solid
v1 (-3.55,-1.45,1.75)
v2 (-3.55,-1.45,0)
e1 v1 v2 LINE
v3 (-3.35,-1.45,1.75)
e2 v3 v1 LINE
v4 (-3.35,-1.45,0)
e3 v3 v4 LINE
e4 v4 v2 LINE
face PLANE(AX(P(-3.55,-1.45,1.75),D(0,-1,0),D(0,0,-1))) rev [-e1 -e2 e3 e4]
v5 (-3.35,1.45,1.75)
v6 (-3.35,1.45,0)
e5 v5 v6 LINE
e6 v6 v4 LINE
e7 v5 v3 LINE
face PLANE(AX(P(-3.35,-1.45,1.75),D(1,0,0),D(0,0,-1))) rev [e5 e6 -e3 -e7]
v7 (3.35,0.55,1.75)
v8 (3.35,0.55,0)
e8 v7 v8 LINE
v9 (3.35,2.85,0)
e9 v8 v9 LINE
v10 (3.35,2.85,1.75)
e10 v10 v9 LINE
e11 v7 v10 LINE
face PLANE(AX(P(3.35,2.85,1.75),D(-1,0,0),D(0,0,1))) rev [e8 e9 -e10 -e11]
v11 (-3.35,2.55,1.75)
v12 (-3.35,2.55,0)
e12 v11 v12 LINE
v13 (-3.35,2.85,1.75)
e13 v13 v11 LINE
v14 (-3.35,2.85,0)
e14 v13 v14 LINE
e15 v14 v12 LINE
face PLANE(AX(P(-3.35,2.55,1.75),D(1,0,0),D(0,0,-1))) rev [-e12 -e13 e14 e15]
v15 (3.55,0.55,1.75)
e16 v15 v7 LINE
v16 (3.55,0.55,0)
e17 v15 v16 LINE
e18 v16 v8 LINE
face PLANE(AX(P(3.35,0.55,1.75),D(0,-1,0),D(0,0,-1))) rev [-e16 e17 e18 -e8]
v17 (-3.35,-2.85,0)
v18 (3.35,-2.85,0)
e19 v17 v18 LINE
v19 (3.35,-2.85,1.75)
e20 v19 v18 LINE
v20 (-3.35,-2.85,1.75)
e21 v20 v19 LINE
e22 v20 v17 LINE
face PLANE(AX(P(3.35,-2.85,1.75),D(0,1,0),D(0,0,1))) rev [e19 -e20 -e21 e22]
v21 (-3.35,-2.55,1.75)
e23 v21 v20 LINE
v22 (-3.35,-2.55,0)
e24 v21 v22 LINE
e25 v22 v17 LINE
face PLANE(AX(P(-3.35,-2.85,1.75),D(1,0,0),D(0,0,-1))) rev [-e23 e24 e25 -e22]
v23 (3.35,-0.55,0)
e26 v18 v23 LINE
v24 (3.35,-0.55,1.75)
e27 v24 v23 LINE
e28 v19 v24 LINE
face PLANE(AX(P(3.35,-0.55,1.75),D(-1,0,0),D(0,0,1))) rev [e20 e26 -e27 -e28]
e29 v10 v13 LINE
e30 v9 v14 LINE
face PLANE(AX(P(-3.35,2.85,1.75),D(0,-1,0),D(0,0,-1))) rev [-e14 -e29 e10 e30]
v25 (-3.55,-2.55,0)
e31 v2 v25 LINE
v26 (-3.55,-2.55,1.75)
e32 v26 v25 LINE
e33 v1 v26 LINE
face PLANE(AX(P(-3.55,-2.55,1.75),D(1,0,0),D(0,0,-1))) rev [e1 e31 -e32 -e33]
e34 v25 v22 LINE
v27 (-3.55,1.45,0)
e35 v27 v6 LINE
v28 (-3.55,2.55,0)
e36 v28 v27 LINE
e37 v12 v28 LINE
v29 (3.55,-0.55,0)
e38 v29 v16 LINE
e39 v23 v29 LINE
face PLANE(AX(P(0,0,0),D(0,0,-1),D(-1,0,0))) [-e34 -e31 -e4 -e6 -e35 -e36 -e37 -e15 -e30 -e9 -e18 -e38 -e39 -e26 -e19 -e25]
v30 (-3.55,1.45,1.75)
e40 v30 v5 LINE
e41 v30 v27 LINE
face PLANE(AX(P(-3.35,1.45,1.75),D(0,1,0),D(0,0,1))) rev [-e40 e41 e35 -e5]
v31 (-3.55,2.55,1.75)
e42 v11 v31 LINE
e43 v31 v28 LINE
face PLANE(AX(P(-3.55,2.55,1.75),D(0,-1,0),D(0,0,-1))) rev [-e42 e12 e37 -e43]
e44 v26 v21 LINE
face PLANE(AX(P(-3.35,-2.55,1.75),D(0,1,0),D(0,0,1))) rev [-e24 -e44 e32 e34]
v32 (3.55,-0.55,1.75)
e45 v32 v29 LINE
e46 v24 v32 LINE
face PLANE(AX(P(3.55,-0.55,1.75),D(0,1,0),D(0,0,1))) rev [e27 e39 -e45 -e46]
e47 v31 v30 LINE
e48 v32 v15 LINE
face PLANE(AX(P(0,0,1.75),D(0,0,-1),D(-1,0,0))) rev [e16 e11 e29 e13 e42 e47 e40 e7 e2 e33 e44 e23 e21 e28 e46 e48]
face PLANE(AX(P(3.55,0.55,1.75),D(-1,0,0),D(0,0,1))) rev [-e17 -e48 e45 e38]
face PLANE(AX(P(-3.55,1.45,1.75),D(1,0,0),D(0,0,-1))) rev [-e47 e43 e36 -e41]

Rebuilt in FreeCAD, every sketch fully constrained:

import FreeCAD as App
import Part
import Sketcher

V = App.Vector


def add_polygon(sketch, points):
    """Adds a closed chain of lines whose ends are joined by coincident constraints."""
    first, n = sketch.GeometryCount, len(points)
    for a, b in zip(points, points[1:] + points[:1]):
        sketch.addGeometry(Part.LineSegment(App.Vector(*a, 0), App.Vector(*b, 0)), False)
    for i in range(n):
        sketch.addConstraint(Sketcher.Constraint("Coincident", first + i, 2, first + (i + 1) % n, 1))

doc = App.newDocument("Part")
body = doc.addObject("PartDesign::Body", "Body")

sketch1 = body.newObject("Sketcher::SketchObject", "Sketch")
sketch1.AttachmentSupport = (doc.getObject("XY_Plane"), [""])
sketch1.MapMode = "FlatFace"
add_polygon(sketch1, [(-3.35, -2.55), (-3.35, -2.85), (3.35, -2.85), (3.35, -0.55), (3.55, -0.55), (3.55, 0.55), (3.35, 0.55), (3.35, 2.85), (-3.35, 2.85), (-3.35, 2.55), (-3.55, 2.55), (-3.55, 1.45), (-3.35, 1.45), (-3.35, -1.45), (-3.55, -1.45), (-3.55, -2.55)])
sketch1.addConstraint([
    Sketcher.Constraint("Vertical", 0),
    Sketcher.Constraint("Horizontal", 1),
    Sketcher.Constraint("Vertical", 2),
    Sketcher.Constraint("Horizontal", 3),
    Sketcher.Constraint("Vertical", 4),
    Sketcher.Constraint("Horizontal", 5),
    Sketcher.Constraint("Vertical", 6),
    Sketcher.Constraint("Horizontal", 7),
    Sketcher.Constraint("Vertical", 8),
    Sketcher.Constraint("Horizontal", 9),
    Sketcher.Constraint("Vertical", 10),
    Sketcher.Constraint("Horizontal", 11),
    Sketcher.Constraint("Vertical", 12),
    Sketcher.Constraint("Horizontal", 13),
    Sketcher.Constraint("Vertical", 14),
    Sketcher.Constraint("Horizontal", 15),
    Sketcher.Constraint("Symmetric", 0, 2, 6, 2, -1, 1),
    Sketcher.Constraint("Symmetric", 2, 2, 5, 2, -1),
    Sketcher.Constraint("Symmetric", 10, 2, 13, 2, -1),
    Sketcher.Constraint("Symmetric", 8, 2, 15, 2, -1),
    Sketcher.Constraint("Vertical", 8, 2, 11, 2),
    Sketcher.Constraint("Equal", 5, 9),
    Sketcher.Constraint("Equal", 4, 10),
    Sketcher.Constraint("DistanceX", 1, 1, 1, 2, 6.7),
    Sketcher.Constraint("DistanceX", 3, 1, 3, 2, 0.2),
    Sketcher.Constraint("DistanceY", 0, 2, 0, 1, 0.3),
    Sketcher.Constraint("DistanceY", 2, 1, 2, 2, 2.3),
    Sketcher.Constraint("DistanceY", 4, 1, 4, 2, 1.1),
])
pad1 = body.newObject("PartDesign::Pad", "Pad")
pad1.Profile = sketch1
pad1.Length = 1.75

doc.recompute()
